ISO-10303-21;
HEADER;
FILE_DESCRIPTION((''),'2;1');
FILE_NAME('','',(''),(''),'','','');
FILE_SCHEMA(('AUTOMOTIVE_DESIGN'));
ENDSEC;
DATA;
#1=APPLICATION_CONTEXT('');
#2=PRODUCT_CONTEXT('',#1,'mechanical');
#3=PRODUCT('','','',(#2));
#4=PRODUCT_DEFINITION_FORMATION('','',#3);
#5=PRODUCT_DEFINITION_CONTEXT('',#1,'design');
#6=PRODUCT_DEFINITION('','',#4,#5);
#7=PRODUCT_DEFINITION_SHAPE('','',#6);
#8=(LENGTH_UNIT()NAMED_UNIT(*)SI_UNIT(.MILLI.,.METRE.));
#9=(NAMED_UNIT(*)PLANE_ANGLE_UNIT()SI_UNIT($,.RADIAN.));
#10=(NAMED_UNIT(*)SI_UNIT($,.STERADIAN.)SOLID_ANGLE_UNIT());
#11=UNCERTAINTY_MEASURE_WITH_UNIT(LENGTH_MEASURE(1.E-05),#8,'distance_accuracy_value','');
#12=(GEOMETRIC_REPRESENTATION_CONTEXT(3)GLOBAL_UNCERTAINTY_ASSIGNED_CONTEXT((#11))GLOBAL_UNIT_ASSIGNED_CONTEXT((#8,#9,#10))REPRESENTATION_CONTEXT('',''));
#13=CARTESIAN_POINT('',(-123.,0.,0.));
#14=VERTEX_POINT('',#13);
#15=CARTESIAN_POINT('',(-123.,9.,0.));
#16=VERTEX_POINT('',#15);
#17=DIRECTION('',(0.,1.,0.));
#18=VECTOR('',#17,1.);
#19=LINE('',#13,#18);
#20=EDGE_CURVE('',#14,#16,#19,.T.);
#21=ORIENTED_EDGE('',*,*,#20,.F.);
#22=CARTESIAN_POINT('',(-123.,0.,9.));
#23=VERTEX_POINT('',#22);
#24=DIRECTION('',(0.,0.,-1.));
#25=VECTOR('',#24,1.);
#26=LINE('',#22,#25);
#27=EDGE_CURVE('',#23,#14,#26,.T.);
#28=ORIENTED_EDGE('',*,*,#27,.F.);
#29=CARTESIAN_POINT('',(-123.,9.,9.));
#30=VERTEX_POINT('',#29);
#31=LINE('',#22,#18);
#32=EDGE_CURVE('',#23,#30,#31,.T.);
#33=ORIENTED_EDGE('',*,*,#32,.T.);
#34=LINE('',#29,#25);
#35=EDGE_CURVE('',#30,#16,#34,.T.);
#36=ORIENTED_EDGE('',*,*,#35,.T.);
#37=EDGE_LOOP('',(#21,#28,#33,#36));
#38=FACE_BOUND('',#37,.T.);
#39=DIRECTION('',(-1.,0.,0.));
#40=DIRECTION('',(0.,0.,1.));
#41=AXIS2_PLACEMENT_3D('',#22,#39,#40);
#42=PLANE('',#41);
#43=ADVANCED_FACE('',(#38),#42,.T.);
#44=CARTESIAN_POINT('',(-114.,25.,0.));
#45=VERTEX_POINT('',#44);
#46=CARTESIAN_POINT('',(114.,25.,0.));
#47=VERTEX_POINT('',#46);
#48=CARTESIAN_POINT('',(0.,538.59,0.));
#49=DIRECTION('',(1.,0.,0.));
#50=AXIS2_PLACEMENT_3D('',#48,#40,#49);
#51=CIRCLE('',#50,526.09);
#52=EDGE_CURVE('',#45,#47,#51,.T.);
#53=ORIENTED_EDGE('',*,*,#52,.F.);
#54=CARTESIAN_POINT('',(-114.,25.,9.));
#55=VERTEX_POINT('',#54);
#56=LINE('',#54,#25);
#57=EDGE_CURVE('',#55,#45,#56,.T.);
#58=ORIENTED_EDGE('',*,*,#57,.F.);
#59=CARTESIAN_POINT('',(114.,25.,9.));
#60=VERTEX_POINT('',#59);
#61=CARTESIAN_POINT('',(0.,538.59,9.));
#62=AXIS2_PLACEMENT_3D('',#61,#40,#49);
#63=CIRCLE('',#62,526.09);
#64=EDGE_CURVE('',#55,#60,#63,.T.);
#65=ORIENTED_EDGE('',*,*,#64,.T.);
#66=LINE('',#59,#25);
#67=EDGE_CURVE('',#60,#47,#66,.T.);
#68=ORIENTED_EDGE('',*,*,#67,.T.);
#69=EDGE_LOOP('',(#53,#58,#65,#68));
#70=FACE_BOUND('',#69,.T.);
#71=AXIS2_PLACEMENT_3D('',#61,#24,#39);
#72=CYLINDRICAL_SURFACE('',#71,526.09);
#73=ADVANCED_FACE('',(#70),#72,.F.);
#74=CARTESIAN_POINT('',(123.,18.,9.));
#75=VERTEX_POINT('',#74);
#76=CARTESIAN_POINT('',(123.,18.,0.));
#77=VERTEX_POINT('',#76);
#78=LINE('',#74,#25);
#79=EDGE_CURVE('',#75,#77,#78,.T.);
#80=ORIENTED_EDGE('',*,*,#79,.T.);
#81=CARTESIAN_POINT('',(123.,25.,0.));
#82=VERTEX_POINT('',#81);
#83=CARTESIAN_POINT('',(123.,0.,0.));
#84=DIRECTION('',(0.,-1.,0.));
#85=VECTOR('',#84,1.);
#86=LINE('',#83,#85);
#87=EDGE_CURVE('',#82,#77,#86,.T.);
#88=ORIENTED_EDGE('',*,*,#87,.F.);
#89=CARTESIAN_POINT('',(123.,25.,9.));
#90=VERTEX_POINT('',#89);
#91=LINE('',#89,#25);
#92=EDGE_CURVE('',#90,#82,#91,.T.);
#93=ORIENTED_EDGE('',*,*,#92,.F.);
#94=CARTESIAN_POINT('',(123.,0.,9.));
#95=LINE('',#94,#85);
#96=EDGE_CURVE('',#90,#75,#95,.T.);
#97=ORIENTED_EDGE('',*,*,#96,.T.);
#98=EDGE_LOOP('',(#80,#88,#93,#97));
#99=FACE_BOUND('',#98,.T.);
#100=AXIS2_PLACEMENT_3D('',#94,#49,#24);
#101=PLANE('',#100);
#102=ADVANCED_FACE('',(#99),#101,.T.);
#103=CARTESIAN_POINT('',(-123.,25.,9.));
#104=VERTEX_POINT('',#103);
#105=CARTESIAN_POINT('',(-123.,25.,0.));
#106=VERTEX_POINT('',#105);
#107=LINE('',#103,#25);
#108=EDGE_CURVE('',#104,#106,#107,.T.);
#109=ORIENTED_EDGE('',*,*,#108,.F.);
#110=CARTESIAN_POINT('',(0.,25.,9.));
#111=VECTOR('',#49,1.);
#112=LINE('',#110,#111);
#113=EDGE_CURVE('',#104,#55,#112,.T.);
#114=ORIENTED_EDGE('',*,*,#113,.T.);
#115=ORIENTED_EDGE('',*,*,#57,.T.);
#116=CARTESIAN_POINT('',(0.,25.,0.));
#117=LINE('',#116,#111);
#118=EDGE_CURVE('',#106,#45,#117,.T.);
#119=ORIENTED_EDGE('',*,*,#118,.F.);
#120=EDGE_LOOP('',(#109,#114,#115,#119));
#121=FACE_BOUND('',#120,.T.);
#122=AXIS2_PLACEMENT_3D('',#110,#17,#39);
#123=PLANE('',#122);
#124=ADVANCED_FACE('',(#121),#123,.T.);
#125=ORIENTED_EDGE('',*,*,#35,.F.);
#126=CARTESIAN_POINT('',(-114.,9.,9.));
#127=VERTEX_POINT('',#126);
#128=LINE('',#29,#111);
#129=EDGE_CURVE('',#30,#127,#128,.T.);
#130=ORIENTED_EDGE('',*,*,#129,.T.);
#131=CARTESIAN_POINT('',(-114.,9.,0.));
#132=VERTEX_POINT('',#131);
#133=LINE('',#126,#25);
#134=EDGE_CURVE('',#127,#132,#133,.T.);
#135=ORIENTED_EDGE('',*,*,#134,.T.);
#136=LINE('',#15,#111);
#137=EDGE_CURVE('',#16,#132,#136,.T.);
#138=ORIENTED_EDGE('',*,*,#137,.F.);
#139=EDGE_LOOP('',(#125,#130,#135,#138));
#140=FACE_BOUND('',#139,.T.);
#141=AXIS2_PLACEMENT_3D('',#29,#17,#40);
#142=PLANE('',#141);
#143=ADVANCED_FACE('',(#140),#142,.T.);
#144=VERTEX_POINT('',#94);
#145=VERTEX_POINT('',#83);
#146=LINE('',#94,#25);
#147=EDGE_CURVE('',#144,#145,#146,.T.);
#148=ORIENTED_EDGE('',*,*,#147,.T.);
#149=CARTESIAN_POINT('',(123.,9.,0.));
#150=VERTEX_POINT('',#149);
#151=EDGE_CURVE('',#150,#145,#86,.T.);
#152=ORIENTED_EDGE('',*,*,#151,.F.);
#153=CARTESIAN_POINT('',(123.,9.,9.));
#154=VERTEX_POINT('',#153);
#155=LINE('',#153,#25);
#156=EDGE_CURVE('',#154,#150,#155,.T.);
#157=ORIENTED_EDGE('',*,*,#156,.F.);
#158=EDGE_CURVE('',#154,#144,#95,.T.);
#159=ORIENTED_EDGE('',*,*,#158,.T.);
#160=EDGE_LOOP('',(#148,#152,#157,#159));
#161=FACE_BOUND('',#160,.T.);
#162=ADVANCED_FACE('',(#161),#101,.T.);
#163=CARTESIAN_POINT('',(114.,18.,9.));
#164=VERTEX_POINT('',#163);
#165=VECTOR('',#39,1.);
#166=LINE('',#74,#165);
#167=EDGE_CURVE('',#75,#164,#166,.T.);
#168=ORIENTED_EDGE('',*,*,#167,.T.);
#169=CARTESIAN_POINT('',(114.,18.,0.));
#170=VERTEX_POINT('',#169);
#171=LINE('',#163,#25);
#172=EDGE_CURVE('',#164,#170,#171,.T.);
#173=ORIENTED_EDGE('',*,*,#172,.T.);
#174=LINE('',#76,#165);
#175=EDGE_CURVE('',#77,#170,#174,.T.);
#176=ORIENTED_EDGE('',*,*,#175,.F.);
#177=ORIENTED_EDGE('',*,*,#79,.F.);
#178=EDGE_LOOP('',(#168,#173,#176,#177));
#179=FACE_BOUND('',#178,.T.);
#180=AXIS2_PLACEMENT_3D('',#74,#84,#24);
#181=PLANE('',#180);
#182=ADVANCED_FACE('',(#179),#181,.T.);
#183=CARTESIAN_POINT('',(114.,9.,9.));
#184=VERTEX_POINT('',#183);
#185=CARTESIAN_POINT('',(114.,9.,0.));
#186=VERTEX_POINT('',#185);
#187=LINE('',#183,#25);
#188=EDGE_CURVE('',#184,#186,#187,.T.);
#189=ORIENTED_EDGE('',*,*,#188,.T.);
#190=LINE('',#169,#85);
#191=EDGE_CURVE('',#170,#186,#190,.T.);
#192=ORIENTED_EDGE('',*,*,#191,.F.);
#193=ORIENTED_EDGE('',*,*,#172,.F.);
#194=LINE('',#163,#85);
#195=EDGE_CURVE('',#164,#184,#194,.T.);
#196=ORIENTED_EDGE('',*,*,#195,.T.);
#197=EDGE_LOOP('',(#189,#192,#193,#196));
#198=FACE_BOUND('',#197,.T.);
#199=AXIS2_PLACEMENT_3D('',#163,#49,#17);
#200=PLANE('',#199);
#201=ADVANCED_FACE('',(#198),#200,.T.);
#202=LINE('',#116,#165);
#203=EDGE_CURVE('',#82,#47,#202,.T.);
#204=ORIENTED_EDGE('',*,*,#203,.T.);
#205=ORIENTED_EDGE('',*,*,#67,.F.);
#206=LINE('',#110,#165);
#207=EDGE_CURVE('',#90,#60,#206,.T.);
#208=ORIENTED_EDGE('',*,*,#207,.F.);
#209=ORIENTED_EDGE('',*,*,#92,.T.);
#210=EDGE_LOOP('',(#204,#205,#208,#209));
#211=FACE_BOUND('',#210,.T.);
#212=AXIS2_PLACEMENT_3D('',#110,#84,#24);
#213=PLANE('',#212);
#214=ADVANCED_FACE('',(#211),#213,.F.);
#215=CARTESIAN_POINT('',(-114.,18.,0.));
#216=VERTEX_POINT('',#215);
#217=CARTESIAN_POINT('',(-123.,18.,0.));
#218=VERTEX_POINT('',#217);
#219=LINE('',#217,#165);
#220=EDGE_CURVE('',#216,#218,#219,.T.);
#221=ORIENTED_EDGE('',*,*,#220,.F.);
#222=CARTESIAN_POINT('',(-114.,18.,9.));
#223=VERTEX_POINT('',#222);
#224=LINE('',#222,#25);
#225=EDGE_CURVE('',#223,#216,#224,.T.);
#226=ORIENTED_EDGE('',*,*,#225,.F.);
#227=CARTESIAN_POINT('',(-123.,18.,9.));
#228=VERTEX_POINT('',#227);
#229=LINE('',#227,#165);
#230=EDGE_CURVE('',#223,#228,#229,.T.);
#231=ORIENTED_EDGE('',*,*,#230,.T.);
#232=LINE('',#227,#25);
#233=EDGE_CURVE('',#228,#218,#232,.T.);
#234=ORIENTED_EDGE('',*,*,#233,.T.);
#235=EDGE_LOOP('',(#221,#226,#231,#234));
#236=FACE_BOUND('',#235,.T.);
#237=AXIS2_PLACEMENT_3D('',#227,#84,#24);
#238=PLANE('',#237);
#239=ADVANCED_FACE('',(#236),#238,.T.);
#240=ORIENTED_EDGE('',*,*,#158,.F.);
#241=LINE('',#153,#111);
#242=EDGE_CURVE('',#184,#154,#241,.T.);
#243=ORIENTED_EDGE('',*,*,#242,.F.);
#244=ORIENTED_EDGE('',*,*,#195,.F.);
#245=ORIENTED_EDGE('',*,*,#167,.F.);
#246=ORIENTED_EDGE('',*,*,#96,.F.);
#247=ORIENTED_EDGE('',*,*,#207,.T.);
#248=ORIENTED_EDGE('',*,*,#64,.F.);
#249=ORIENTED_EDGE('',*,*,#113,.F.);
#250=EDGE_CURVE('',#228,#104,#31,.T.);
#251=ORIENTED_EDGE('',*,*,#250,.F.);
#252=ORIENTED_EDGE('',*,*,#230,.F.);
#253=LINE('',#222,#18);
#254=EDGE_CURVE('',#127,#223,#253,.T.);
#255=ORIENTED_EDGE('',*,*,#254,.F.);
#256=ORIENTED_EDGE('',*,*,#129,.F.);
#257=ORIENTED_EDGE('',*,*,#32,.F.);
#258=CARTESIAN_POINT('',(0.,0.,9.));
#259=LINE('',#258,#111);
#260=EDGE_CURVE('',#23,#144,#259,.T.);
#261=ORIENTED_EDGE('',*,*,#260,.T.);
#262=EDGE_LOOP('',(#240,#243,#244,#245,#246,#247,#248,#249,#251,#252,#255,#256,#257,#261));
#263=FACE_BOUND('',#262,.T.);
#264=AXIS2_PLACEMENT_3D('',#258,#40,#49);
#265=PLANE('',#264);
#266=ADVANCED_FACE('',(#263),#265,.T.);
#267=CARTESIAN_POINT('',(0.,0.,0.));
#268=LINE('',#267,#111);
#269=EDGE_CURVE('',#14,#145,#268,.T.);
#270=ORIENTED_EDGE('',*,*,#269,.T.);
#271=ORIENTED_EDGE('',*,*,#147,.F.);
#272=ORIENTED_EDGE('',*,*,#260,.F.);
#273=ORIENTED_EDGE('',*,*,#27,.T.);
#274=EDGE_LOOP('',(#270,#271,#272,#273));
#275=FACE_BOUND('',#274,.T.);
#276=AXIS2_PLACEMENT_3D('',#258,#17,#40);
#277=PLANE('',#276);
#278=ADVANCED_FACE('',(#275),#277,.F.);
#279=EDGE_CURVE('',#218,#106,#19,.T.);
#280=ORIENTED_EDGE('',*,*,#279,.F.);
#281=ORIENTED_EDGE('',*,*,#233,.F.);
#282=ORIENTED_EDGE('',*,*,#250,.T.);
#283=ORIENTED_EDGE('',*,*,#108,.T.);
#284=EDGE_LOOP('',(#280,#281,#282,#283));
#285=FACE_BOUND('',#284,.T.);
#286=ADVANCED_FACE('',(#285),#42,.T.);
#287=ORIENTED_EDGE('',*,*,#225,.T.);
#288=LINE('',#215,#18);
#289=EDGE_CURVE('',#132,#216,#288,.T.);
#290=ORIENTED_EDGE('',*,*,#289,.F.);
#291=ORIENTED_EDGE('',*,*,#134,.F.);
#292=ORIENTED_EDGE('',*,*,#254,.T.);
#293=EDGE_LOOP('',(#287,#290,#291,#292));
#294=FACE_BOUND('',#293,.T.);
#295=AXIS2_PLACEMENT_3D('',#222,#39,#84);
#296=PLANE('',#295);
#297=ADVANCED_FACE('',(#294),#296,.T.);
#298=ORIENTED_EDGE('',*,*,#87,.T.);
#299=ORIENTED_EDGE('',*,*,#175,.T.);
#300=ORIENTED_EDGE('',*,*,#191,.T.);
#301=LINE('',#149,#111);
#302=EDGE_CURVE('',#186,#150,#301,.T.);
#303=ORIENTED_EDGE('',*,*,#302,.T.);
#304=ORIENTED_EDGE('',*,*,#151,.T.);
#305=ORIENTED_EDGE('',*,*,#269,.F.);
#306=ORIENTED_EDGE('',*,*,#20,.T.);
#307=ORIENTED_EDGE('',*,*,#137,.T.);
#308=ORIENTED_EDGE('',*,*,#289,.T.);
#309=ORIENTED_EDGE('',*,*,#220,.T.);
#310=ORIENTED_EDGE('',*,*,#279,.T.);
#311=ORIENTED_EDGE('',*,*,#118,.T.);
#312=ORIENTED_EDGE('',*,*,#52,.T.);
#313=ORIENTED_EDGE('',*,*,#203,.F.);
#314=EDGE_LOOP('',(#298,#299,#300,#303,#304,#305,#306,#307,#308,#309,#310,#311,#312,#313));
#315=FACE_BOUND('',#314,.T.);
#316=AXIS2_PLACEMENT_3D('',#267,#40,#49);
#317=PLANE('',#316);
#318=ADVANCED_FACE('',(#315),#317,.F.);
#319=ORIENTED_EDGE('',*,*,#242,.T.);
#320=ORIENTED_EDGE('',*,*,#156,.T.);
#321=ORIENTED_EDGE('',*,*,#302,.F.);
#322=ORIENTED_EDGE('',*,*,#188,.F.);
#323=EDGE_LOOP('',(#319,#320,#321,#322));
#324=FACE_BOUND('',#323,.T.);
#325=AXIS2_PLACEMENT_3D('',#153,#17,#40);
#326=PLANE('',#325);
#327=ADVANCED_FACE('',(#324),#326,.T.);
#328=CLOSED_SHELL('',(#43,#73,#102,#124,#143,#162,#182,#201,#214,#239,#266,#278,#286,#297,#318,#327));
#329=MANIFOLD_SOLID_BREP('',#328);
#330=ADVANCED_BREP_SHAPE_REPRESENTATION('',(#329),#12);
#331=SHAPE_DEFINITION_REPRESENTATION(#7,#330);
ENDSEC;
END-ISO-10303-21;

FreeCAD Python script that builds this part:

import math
import FreeCAD as App
import Part
import Sketcher
Q = App.Units.Quantity


def add_polygon(sketch, points):
    """Adds a closed chain of lines whose ends are joined by coincident constraints."""
    first, n = sketch.GeometryCount, len(points)
    for a, b in zip(points, points[1:] + points[:1]):
        sketch.addGeometry(Part.LineSegment(App.Vector(*a, 0), App.Vector(*b, 0)), False)
    for i in range(n):
        sketch.addConstraint(Sketcher.Constraint("Coincident", first + i, 2, first + (i + 1) % n, 1))

doc = App.newDocument("Part")
body = doc.addObject("PartDesign::Body", "Body")

# Sketch on XY plane
sketch1 = body.newObject("Sketcher::SketchObject", "Sketch")
sketch1.AttachmentSupport = (doc.getObject("XY_Plane"), [""])
sketch1.MapMode = "FlatFace"
sketch1.addGeometry(Part.LineSegment(App.Vector(-123, 25, 0), App.Vector(-123, 0, 0)), False)
sketch1.addGeometry(Part.LineSegment(App.Vector(-123, 0, 0), App.Vector(123, 0, 0)), False)
sketch1.addGeometry(Part.LineSegment(App.Vector(123, 0, 0), App.Vector(123, 25, 0)), False)
sketch1.addGeometry(Part.LineSegment(App.Vector(123, 25, 0), App.Vector(114, 25, 0)), False)
sketch1.addGeometry(Part.ArcOfCircle(Part.Circle(App.Vector(0, 539, 0), App.Vector(0, 0, 1), 526), math.radians(-103), math.radians(-77)), False)
sketch1.addGeometry(Part.LineSegment(App.Vector(-114, 25, 0), App.Vector(-123, 25, 0)), False)
sketch1.addConstraint(Sketcher.Constraint("Coincident", 0, 2, 1, 1))
sketch1.addConstraint(Sketcher.Constraint("Coincident", 1, 2, 2, 1))
sketch1.addConstraint(Sketcher.Constraint("Coincident", 2, 2, 3, 1))
sketch1.addConstraint(Sketcher.Constraint("Coincident", 3, 2, 4, 2))
sketch1.addConstraint(Sketcher.Constraint("Coincident", 4, 1, 5, 1))
sketch1.addConstraint(Sketcher.Constraint("Coincident", 5, 2, 0, 1))
sketch1.addConstraint(Sketcher.Constraint("Vertical", 0))
sketch1.addConstraint(Sketcher.Constraint("Horizontal", 1))
sketch1.addConstraint(Sketcher.Constraint("Vertical", 2))
sketch1.addConstraint(Sketcher.Constraint("Horizontal", 3))
sketch1.addConstraint(Sketcher.Constraint("Horizontal", 5))
sketch1.addConstraint(Sketcher.Constraint("Symmetric", 0, 2, 1, 2, -1, 1))
sketch1.addConstraint(Sketcher.Constraint("Symmetric", 3, 2, 4, 1, -2))
sketch1.addConstraint(Sketcher.Constraint("DistanceX", 1, 1, 1, 2, Q("246 mm")))
sketch1.addConstraint(Sketcher.Constraint("DistanceX", 3, 2, 3, 1, Q("9 mm")))
sketch1.addConstraint(Sketcher.Constraint("DistanceY", 0, 2, 0, 1, Q("25 mm")))
sketch1.addConstraint(Sketcher.Constraint("Radius", 4, Q("526.09 mm")))
pad1 = body.newObject("PartDesign::Pad", "Pad")
pad1.Profile = sketch1
pad1.Length = 9

# Sketch on XY plane
sketch2 = body.newObject("Sketcher::SketchObject", "Sketch001")
sketch2.AttachmentSupport = (doc.getObject("XY_Plane"), [""])
sketch2.MapMode = "FlatFace"
add_polygon(sketch2, [(114, 18), (114, 9), (123, 9), (123, 18)])  # lines 0-3
add_polygon(sketch2, [(-123, 18), (-123, 9), (-114, 9), (-114, 18)])  # lines 4-7
sketch2.addConstraint(Sketcher.Constraint("Vertical", 0))
sketch2.addConstraint(Sketcher.Constraint("Horizontal", 1))
sketch2.addConstraint(Sketcher.Constraint("Vertical", 2))
sketch2.addConstraint(Sketcher.Constraint("Horizontal", 3))
sketch2.addConstraint(Sketcher.Constraint("Vertical", 4))
sketch2.addConstraint(Sketcher.Constraint("Horizontal", 5))
sketch2.addConstraint(Sketcher.Constraint("Vertical", 6))
sketch2.addConstraint(Sketcher.Constraint("Horizontal", 7))
sketch2.addConstraint(Sketcher.Constraint("Symmetric", 1, 2, 4, 2, -2))
sketch2.addConstraint(Sketcher.Constraint("Symmetric", 3, 2, 6, 2, -2))
sketch2.addConstraint(Sketcher.Constraint("Equal", 7, 0))
sketch2.addConstraint(Sketcher.Constraint("DistanceX", 1, 1, 1, 2, Q("9 mm")))
sketch2.addConstraint(Sketcher.Constraint("DistanceX", -1, 1, 0, 2, Q("114 mm")))
sketch2.addConstraint(Sketcher.Constraint("DistanceY", -1, 1, 0, 2, Q("9 mm")))
pocket1 = body.newObject("PartDesign::Pocket", "Pocket")
pocket1.Profile = sketch2
pocket1.Type = "ThroughAll"
pocket1.Reversed = True

doc.recompute()
